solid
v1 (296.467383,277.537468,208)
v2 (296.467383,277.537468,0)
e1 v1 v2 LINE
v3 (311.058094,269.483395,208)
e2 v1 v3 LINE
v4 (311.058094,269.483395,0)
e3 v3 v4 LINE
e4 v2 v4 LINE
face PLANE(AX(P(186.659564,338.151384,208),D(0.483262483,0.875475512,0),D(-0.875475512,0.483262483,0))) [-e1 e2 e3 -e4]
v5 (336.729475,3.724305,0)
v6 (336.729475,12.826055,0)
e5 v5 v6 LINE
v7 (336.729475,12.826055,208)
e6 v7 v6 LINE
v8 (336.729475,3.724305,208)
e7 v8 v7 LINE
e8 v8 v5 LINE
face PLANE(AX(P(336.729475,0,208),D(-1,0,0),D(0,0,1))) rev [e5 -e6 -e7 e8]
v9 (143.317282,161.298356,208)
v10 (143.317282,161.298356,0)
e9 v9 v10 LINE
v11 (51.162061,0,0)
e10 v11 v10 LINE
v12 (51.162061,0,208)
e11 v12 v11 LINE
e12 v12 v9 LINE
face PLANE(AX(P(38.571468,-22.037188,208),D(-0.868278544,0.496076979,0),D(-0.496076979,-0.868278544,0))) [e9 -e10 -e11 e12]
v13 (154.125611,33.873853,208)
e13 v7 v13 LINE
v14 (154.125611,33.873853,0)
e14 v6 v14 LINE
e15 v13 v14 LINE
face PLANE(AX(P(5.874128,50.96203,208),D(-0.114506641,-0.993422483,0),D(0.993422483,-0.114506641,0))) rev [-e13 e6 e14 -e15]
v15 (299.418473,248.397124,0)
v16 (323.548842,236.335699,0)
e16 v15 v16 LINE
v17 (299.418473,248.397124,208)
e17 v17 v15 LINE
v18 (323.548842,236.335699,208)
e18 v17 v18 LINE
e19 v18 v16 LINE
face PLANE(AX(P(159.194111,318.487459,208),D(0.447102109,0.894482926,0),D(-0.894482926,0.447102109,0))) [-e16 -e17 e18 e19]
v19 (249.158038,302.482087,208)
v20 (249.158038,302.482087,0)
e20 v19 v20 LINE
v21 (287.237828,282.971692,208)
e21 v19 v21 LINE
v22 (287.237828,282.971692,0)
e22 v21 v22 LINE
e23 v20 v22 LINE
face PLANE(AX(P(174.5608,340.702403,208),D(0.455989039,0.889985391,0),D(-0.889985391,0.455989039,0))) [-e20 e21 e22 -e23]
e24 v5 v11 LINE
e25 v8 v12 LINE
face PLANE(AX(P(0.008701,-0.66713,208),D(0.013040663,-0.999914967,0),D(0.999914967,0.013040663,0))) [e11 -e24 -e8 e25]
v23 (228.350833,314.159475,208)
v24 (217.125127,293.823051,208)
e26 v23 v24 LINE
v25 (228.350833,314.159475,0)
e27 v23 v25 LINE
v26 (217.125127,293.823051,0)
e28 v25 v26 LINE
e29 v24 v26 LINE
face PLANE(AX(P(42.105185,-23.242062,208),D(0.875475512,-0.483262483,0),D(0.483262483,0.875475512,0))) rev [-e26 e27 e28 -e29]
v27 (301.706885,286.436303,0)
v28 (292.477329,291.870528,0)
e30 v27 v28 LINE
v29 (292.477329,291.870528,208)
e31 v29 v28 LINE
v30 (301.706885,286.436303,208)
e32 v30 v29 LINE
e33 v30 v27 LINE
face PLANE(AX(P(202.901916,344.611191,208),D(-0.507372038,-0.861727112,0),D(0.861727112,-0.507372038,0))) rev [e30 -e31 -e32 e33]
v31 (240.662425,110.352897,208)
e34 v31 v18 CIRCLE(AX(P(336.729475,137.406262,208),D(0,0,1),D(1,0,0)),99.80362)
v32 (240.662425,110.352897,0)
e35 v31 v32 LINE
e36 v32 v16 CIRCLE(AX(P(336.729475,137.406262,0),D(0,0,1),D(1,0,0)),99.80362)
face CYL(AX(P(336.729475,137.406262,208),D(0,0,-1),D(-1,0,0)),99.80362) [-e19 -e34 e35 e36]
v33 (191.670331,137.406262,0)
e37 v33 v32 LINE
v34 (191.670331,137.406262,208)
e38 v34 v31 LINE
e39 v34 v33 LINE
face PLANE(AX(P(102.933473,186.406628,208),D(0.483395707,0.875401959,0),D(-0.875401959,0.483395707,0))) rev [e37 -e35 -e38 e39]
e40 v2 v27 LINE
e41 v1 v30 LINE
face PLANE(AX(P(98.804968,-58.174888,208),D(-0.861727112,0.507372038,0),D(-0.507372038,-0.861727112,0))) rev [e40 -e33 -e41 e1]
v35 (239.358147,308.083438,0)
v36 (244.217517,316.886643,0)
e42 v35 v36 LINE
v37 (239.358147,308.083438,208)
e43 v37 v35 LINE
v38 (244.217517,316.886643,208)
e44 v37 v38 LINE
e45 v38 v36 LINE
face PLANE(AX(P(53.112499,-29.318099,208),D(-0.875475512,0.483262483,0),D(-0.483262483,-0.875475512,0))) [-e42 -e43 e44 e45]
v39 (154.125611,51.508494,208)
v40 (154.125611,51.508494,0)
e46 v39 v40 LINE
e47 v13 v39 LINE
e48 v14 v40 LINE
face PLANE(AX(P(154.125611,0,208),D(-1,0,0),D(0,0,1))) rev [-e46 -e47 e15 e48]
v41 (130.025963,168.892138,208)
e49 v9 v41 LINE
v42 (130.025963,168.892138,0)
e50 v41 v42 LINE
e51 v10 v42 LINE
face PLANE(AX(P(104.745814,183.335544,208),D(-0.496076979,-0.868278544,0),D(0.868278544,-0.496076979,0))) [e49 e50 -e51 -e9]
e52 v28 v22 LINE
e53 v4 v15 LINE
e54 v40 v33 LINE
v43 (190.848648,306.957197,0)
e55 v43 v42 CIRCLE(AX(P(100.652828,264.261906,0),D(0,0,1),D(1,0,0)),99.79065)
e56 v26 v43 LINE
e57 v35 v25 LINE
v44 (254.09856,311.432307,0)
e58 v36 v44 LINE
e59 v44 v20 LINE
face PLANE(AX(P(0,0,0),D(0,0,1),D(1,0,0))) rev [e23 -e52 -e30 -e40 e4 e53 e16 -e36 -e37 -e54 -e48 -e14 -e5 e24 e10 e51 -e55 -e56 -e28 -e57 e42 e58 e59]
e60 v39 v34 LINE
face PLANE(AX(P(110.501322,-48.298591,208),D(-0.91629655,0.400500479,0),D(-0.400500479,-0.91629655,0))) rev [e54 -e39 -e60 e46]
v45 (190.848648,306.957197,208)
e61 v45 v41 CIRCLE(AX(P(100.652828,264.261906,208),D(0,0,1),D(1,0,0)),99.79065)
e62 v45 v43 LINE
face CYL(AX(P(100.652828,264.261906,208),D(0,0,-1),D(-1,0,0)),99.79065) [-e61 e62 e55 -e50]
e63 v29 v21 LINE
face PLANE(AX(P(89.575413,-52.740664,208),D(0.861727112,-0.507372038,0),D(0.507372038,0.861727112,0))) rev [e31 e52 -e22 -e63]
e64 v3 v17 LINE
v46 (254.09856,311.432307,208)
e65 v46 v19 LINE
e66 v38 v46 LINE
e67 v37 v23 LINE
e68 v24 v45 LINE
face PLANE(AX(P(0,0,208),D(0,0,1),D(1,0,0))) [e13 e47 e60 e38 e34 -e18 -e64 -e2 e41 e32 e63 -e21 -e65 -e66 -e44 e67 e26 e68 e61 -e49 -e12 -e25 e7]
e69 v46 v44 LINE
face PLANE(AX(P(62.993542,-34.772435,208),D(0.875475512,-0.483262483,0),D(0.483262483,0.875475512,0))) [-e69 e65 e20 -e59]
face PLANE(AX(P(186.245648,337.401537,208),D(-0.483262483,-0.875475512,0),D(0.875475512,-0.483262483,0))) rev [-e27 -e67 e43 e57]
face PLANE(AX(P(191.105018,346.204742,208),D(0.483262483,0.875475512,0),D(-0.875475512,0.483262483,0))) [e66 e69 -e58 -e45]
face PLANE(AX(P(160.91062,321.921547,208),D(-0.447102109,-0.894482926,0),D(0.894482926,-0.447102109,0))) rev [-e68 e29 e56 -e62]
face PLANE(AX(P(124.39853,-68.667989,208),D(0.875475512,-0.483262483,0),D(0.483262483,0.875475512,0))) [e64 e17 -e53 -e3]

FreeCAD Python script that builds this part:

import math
import FreeCAD as App
import Part
import Sketcher

V = App.Vector

doc = App.newDocument("Part")
body = doc.addObject("PartDesign::Body", "Body")

# Sketch on XY plane
sketch1 = doc.addObject("Sketcher::SketchObject", "Sketch")
body.addObject(sketch1)
sketch1.AttachmentSupport = (doc.XY_Plane, [""])
sketch1.MapMode = "FlatFace"
sketch1.addGeometry([
    Part.ArcOfCircle(Part.Circle(V(100.652828, 264.261906, 0), V(0, 0, 1), 99.79065), math.radians(25.331105), math.radians(287.118419)),  # 0
    Part.LineSegment(V(130.025963, 168.892138, 0), V(143.317282, 161.298356, 0)),  # 1
    Part.LineSegment(V(143.317282, 161.298356, 0), V(51.162061, 0, 0)),  # 2
    Part.LineSegment(V(51.162061, 0, 0), V(336.729475, 3.724305, 0)),  # 3
    Part.LineSegment(V(336.729475, 3.724305, 0), V(336.729475, 12.826055, 0)),  # 4
    Part.LineSegment(V(336.729475, 12.826055, 0), V(154.125611, 33.873853, 0)),  # 5
    Part.LineSegment(V(154.125611, 33.873853, 0), V(154.125611, 51.508494, 0)),  # 6
    Part.LineSegment(V(154.125611, 51.508494, 0), V(191.670331, 137.406262, 0)),  # 7
    Part.LineSegment(V(191.670331, 137.406262, 0), V(240.662425, 110.352897, 0)),  # 8
    Part.ArcOfCircle(Part.Circle(V(336.729475, 137.406262, 0), V(0, 0, 1), 99.80362), math.radians(-164.272292), math.radians(97.588976)),  # 9
    Part.LineSegment(V(323.548842, 236.335699, 0), V(299.418473, 248.397124, 0)),  # 10
    Part.LineSegment(V(299.418473, 248.397124, 0), V(311.058094, 269.483395, 0)),  # 11
    Part.LineSegment(V(311.058094, 269.483395, 0), V(296.467383, 277.537468, 0)),  # 12
    Part.LineSegment(V(296.467383, 277.537468, 0), V(301.706885, 286.436303, 0)),  # 13
    Part.LineSegment(V(301.706885, 286.436303, 0), V(292.477329, 291.870528, 0)),  # 14
    Part.LineSegment(V(292.477329, 291.870528, 0), V(287.237828, 282.971692, 0)),  # 15
    Part.LineSegment(V(287.237828, 282.971692, 0), V(249.158038, 302.482087, 0)),  # 16
    Part.LineSegment(V(249.158038, 302.482087, 0), V(254.09856, 311.432307, 0)),  # 17
    Part.LineSegment(V(254.09856, 311.432307, 0), V(244.217517, 316.886643, 0)),  # 18
    Part.LineSegment(V(244.217517, 316.886643, 0), V(239.358147, 308.083438, 0)),  # 19
    Part.LineSegment(V(239.358147, 308.083438, 0), V(228.350833, 314.159475, 0)),  # 20
    Part.LineSegment(V(228.350833, 314.159475, 0), V(217.125127, 293.823051, 0)),  # 21
    Part.LineSegment(V(217.125127, 293.823051, 0), V(190.848648, 306.957197, 0)),  # 22
], False)
sketch1.addConstraint([
    Sketcher.Constraint("Coincident", 0, 2, 1, 1),
    Sketcher.Constraint("Coincident", 1, 2, 2, 1),
    Sketcher.Constraint("Coincident", 2, 2, 3, 1),
    Sketcher.Constraint("Coincident", 3, 2, 4, 1),
    Sketcher.Constraint("Coincident", 4, 2, 5, 1),
    Sketcher.Constraint("Coincident", 5, 2, 6, 1),
    Sketcher.Constraint("Coincident", 6, 2, 7, 1),
    Sketcher.Constraint("Coincident", 7, 2, 8, 1),
    Sketcher.Constraint("Coincident", 8, 2, 9, 1),
    Sketcher.Constraint("Coincident", 9, 2, 10, 1),
    Sketcher.Constraint("Coincident", 10, 2, 11, 1),
    Sketcher.Constraint("Coincident", 11, 2, 12, 1),
    Sketcher.Constraint("Coincident", 12, 2, 13, 1),
    Sketcher.Constraint("Coincident", 13, 2, 14, 1),
    Sketcher.Constraint("Coincident", 14, 2, 15, 1),
    Sketcher.Constraint("Coincident", 15, 2, 16, 1),
    Sketcher.Constraint("Coincident", 16, 2, 17, 1),
    Sketcher.Constraint("Coincident", 17, 2, 18, 1),
    Sketcher.Constraint("Coincident", 18, 2, 19, 1),
    Sketcher.Constraint("Coincident", 19, 2, 20, 1),
    Sketcher.Constraint("Coincident", 20, 2, 21, 1),
    Sketcher.Constraint("Coincident", 21, 2, 22, 1),
    Sketcher.Constraint("Coincident", 22, 2, 0, 1),
    Sketcher.Constraint("Vertical", 4),
    Sketcher.Constraint("Vertical", 6),
    Sketcher.Constraint("PointOnObject", 2, 2, -1),
    Sketcher.Constraint("Radius", 0, 99.79065),
    Sketcher.Constraint("Radius", 9, 99.80362),
    Sketcher.Constraint("Distance", 3, 285.591699),
    Sketcher.Constraint("DistanceY", 4, 1, 4, 2, 9.10175),
    Sketcher.Constraint("DistanceY", 6, 1, 6, 2, 17.634641),
    Sketcher.Constraint("DistanceY", -1, 1, 9, 2, 236.335699),
    Sketcher.Constraint("DistanceY", 3, 2, 0, 3, 260.537601),
    Sketcher.Constraint("DistanceY", 4, 2, 1, 2, 148.472301),
    Sketcher.Constraint("DistanceY", 8, 2, 9, 2, 125.982802),
    Sketcher.Constraint("DistanceX", 12, 2, 13, 2, 5.239501),
    Sketcher.Constraint("DistanceX", 15, 2, 14, 2, 5.239501),
    Sketcher.Constraint("DistanceX", 22, 2, 19, 2, 48.5095),
    Sketcher.Constraint("Distance", 12, 16.666041),
    Sketcher.Constraint("Distance", 14, 10.710531),
    Sketcher.Constraint("Distance", 19, 10.055342),
    Sketcher.Constraint("DistanceX", -1, 1, 0, 3, 100.652828),
    Sketcher.Constraint("DistanceY", -1, 1, 9, 3, 137.406262),
    Sketcher.Constraint("DistanceX", -1, 1, 2, 2, 51.162061),
    Sketcher.Constraint("DistanceX", -1, 1, 5, 2, 154.125611),
    Sketcher.Constraint("DistanceX", -1, 1, 7, 2, 191.670331),
    Sketcher.Constraint("DistanceY", -1, 1, 7, 2, 137.406262),
    Sketcher.Constraint("DistanceX", -1, 1, 14, 2, 292.477329),
    Sketcher.Constraint("DistanceY", -1, 1, 15, 2, 282.971692),
    Sketcher.Constraint("DistanceX", -1, 1, 16, 2, 249.158038),
    Sketcher.Constraint("DistanceX", -1, 1, 17, 2, 254.09856),
    Sketcher.Constraint("DistanceY", -1, 1, 21, 2, 293.823051),
    Sketcher.Constraint("DistanceY", 0, 2, 0, 3, 95.369768),
    Sketcher.Constraint("DistanceX", 0, 2, 1, 2, 13.291319),
    Sketcher.Constraint("DistanceY", 4, 2, 6, 2, 38.682439),
    Sketcher.Constraint("DistanceY", 6, 2, 7, 2, 85.897768),
    Sketcher.Constraint("DistanceX", 7, 2, 9, 2, 131.878512),
    Sketcher.Constraint("DistanceX", 10, 2, 9, 2, 24.13037),
    Sketcher.Constraint("DistanceY", 1, 2, 10, 2, 87.098768),
    Sketcher.Constraint("DistanceX", 10, 2, 11, 2, 11.639621),
    Sketcher.Constraint("DistanceY", 10, 2, 11, 2, 21.086271),
    Sketcher.Constraint("DistanceX", 12, 2, 11, 2, 14.590711),
    Sketcher.Constraint("DistanceY", 11, 2, 13, 2, 16.952908),
    Sketcher.Constraint("DistanceY", 14, 2, 16, 2, 10.611559),
    Sketcher.Constraint("DistanceY", 16, 2, 17, 2, 8.95022),
    Sketcher.Constraint("DistanceX", 18, 2, 16, 2, 4.940522),
    Sketcher.Constraint("DistanceY", 15, 2, 18, 2, 33.914951),
    Sketcher.Constraint("DistanceX", 19, 2, 18, 2, 4.859369),
    Sketcher.Constraint("DistanceY", 16, 2, 20, 2, 11.677388),
    Sketcher.Constraint("DistanceX", 21, 2, 19, 2, 22.23302),
    Sketcher.Constraint("Distance", 20, 12.572955),
])
pad1 = doc.addObject("PartDesign::Pad", "Pad")
body.addObject(pad1)
pad1.Profile = sketch1
pad1.Length = 208

doc.recompute()
